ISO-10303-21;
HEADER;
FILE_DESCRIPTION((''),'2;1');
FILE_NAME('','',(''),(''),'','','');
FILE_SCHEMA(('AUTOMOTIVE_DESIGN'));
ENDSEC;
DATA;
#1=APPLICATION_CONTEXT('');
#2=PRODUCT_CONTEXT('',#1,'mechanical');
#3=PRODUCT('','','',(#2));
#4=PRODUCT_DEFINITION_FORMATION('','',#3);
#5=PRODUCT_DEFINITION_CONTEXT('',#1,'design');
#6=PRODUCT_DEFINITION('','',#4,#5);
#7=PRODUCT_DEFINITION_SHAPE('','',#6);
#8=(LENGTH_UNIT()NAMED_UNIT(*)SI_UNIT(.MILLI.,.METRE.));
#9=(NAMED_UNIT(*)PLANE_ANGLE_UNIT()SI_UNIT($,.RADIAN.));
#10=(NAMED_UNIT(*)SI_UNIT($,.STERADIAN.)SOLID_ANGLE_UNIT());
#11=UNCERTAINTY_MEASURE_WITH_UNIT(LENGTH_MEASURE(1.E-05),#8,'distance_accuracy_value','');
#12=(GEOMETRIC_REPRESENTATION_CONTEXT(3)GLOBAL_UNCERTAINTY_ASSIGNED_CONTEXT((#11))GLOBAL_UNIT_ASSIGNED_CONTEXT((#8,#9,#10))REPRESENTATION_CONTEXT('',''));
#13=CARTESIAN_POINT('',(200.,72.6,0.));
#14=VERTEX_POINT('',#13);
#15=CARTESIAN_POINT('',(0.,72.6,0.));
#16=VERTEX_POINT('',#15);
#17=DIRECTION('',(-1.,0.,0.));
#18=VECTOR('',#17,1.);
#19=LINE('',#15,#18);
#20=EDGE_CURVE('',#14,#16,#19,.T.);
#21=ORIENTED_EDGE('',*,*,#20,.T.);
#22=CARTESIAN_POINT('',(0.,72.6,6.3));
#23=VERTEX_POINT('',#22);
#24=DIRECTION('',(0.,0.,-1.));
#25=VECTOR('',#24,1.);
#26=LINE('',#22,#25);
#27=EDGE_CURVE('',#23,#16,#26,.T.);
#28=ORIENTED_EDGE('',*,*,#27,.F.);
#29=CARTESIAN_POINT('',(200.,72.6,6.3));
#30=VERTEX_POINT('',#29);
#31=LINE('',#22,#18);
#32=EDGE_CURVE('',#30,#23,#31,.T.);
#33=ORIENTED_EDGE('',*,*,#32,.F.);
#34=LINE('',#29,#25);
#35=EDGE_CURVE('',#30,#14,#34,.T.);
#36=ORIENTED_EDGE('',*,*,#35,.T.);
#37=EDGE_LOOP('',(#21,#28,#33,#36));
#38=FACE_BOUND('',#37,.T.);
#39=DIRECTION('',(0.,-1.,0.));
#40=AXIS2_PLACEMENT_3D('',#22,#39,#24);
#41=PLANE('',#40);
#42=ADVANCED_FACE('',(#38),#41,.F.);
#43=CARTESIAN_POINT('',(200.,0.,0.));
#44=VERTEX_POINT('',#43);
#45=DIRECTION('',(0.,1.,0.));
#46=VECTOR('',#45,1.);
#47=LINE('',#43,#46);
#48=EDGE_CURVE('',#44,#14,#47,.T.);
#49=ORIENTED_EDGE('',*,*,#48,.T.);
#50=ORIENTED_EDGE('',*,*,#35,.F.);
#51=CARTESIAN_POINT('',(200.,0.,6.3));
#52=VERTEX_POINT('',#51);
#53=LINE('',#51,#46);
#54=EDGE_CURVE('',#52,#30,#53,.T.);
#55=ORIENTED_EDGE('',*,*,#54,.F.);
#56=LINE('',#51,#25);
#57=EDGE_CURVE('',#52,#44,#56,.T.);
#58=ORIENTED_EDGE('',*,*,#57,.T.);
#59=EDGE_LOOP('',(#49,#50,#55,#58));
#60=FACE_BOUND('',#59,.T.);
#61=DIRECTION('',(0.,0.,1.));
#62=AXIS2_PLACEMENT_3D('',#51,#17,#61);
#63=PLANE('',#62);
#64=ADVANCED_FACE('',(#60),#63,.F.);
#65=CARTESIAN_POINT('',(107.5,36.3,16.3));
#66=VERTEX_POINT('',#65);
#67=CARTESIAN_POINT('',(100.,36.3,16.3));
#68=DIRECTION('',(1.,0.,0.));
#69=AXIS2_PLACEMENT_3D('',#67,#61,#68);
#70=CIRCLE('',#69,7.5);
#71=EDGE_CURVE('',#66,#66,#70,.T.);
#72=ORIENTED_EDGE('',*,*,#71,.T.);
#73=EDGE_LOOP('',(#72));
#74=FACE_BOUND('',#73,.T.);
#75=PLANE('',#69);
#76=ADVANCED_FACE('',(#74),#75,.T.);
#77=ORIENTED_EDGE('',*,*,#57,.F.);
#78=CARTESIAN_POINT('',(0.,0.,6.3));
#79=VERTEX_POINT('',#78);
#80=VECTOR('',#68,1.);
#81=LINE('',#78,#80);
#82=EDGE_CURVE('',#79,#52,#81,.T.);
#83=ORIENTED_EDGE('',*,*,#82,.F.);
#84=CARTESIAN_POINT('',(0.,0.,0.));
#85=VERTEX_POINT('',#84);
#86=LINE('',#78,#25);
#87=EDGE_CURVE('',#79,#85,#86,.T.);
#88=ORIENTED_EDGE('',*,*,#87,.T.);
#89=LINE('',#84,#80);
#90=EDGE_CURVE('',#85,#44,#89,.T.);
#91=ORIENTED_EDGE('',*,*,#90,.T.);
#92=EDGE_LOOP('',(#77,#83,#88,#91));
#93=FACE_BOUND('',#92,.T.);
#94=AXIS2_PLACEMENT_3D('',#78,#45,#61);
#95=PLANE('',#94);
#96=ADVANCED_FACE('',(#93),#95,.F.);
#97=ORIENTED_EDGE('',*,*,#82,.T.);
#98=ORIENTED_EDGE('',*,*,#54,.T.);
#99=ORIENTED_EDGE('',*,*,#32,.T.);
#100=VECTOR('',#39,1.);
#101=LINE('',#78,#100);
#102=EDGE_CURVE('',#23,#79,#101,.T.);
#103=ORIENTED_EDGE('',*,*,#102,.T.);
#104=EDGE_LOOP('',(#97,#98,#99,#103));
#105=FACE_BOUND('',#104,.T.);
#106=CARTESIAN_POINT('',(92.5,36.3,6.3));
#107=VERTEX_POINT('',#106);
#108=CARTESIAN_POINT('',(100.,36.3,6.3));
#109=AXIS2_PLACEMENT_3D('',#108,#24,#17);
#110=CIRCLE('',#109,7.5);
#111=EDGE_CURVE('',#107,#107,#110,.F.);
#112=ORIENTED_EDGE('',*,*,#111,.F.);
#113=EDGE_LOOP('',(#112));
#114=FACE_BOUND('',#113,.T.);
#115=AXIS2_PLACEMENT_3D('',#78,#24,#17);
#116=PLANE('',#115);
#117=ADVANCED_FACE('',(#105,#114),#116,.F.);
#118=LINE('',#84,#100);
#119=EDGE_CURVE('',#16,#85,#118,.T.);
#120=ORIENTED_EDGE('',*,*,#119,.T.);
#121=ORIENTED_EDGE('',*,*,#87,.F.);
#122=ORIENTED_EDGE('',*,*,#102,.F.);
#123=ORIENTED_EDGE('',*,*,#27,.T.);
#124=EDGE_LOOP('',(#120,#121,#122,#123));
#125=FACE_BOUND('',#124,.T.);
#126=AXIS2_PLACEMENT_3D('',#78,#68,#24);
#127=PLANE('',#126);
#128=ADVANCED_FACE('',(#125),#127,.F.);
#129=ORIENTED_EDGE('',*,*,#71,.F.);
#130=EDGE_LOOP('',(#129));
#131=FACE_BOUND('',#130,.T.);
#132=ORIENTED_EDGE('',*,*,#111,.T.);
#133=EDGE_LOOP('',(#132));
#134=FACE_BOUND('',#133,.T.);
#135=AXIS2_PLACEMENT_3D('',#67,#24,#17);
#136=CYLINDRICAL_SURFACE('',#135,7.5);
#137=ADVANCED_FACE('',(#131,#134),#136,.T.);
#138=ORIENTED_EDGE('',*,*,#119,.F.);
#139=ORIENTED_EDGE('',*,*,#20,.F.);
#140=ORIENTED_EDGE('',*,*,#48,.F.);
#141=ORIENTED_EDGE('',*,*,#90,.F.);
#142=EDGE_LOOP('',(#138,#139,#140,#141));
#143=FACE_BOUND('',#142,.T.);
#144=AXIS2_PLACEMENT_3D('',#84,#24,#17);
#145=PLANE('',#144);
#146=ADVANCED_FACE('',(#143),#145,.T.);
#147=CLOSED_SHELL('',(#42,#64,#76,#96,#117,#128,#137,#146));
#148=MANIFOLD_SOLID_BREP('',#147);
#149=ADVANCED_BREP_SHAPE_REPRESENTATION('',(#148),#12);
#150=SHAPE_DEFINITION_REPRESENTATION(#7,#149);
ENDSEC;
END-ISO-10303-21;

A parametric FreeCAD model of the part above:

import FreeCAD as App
import Part
import Sketcher
from FreeCAD import Vector
Q = App.Units.Quantity


def add_polygon(sketch, points):
    """Adds a closed chain of lines whose ends are joined by coincident constraints."""
    first, n = sketch.GeometryCount, len(points)
    for a, b in zip(points, points[1:] + points[:1]):
        sketch.addGeometry(Part.LineSegment(App.Vector(*a, 0), App.Vector(*b, 0)), False)
    for i in range(n):
        sketch.addConstraint(Sketcher.Constraint("Coincident", first + i, 2, first + (i + 1) % n, 1))

doc = App.newDocument("Part")
body = doc.addObject("PartDesign::Body", "Body")

# Sketch on XY plane
sketch1 = body.newObject("Sketcher::SketchObject", "Sketch")
sketch1.AttachmentSupport = (doc.getObject("XY_Plane"), [""])
sketch1.MapMode = "FlatFace"
add_polygon(sketch1, [(0, 73), (0, 0), (200, 0), (200, 73)])  # lines 0-3
sketch1.addConstraint([
    Sketcher.Constraint("Vertical", 0),
    Sketcher.Constraint("Horizontal", 1),
    Sketcher.Constraint("Vertical", 2),
    Sketcher.Constraint("Horizontal", 3),
    Sketcher.Constraint("Coincident", 0, 2, -1, 1),
    Sketcher.Constraint("DistanceX", 1, 1, 1, 2, Q("200 mm")),
    Sketcher.Constraint("DistanceY", 0, 2, 0, 1, Q("72.6 mm")),
])
pad1 = body.newObject("PartDesign::Pad", "Pad")
pad1.Profile = sketch1
pad1.Length = 6.3

# Sketch on XY plane
sketch2 = body.newObject("Sketcher::SketchObject", "Sketch001")
sketch2.AttachmentSupport = (doc.getObject("XY_Plane"), [""])
sketch2.MapMode = "FlatFace"
sketch2.AttachmentOffset = App.Placement(Vector(0, 0, 6.3), App.Rotation())
sketch2.addGeometry(Part.Circle(Vector(100, 36, 0), Vector(0, 0, 1), 8), False)
sketch2.addConstraint([
    Sketcher.Constraint("Diameter", 0, Q("15 mm")),
    Sketcher.Constraint("DistanceX", -1, 1, 0, 3, Q("100 mm")),
    Sketcher.Constraint("DistanceY", -1, 1, 0, 3, Q("36.3 mm")),
])
pad2 = body.newObject("PartDesign::Pad", "Pad001")
pad2.Profile = sketch2
pad2.Length = 10

doc.recompute()
